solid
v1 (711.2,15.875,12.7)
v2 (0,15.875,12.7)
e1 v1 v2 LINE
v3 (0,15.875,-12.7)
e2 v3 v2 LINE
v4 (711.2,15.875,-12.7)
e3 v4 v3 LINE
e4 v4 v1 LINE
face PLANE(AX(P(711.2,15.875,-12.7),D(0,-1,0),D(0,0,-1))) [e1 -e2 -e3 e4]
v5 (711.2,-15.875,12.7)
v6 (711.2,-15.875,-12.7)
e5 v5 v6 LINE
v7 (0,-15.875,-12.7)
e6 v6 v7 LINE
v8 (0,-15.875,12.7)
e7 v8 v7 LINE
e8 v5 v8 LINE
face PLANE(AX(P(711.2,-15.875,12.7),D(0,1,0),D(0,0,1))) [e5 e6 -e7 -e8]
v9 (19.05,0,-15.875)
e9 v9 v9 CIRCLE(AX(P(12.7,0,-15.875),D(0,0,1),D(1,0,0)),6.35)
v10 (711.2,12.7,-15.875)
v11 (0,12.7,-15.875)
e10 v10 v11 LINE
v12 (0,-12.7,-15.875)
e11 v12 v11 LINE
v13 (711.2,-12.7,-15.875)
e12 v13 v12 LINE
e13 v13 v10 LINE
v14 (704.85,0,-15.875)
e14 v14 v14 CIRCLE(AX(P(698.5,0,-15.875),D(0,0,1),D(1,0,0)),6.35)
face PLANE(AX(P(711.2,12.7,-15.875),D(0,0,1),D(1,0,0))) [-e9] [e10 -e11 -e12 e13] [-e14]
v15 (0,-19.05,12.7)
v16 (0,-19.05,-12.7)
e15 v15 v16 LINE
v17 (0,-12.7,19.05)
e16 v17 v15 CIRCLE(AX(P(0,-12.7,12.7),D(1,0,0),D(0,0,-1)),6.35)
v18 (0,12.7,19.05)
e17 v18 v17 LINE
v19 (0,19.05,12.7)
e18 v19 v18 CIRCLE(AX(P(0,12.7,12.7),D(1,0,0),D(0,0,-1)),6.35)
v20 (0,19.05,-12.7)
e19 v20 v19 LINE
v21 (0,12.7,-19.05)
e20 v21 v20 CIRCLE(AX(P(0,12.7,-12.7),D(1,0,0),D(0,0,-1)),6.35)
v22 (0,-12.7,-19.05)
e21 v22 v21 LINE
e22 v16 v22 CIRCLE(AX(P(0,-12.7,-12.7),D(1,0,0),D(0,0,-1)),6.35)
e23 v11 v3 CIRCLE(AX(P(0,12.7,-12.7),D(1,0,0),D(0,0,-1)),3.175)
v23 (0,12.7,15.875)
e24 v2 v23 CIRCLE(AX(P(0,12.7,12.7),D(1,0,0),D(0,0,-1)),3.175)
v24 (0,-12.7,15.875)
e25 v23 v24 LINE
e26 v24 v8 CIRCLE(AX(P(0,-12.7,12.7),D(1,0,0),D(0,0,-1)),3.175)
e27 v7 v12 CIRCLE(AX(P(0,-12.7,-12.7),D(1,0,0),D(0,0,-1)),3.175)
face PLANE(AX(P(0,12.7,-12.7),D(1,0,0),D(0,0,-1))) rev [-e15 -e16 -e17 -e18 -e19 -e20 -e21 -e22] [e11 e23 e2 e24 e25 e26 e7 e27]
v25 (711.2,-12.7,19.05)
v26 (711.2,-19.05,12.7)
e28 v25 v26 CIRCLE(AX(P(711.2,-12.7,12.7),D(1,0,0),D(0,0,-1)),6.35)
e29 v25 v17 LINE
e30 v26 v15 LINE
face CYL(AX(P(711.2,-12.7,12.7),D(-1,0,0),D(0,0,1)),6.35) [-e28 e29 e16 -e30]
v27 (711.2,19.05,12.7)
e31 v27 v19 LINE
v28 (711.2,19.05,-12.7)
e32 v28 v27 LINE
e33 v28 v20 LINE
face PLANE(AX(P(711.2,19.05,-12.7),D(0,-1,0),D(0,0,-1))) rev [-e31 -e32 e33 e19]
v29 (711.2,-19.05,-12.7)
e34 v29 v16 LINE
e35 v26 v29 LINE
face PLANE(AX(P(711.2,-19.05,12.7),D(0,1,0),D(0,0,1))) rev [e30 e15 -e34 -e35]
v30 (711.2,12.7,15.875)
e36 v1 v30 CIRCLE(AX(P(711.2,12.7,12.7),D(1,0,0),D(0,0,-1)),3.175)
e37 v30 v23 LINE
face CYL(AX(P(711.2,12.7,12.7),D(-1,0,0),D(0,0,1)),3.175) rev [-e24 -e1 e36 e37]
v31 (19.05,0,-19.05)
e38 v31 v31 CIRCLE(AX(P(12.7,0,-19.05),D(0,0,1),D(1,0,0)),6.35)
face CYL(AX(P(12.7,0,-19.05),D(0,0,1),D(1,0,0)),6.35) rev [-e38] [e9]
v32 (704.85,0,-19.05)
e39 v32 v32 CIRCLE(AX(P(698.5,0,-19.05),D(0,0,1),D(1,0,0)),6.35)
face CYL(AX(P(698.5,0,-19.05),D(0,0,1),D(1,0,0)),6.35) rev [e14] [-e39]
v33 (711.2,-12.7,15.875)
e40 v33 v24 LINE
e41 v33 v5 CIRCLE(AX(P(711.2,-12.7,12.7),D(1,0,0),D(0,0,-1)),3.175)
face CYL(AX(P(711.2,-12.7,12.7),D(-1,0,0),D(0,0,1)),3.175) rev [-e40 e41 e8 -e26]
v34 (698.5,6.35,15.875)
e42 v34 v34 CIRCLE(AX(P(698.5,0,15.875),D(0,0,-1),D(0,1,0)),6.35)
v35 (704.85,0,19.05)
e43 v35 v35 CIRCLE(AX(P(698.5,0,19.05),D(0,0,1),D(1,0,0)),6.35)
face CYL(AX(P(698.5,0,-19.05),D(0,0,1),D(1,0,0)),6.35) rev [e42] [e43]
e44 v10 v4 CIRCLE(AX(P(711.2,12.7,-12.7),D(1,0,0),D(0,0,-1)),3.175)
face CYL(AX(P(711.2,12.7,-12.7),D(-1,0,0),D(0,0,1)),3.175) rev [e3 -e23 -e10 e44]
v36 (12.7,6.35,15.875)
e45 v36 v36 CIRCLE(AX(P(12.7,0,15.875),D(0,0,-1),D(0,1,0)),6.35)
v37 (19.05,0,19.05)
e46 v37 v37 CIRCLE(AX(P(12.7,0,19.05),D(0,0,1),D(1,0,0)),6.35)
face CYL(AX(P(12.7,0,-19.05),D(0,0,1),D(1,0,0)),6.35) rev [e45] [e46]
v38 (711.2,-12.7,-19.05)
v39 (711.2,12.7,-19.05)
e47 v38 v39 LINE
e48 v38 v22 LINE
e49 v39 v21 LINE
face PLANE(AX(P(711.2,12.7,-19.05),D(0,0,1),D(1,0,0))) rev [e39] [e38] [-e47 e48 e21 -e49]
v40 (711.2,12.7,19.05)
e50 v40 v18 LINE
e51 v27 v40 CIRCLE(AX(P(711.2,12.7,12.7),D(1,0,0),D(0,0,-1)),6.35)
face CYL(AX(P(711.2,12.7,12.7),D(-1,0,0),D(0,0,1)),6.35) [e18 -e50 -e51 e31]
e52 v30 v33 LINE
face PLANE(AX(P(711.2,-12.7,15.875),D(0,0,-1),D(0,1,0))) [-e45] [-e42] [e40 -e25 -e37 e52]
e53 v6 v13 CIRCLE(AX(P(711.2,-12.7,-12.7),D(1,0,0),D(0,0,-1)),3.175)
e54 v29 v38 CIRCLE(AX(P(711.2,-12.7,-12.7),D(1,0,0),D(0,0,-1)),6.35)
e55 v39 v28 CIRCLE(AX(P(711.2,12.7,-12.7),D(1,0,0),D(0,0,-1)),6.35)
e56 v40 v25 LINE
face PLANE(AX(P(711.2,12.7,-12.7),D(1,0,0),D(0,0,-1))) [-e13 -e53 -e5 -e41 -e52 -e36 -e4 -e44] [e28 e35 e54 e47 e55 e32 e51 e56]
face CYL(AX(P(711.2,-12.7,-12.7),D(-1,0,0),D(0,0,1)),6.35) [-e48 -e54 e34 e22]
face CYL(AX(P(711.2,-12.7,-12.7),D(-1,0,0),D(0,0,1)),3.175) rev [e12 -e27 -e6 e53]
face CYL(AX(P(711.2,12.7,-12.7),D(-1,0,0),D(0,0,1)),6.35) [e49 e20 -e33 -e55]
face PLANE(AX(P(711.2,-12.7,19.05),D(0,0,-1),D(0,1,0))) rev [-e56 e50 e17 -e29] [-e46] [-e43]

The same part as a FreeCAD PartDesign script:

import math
import FreeCAD as App
import Part
import Sketcher

V = App.Vector
Q = App.Units.Quantity

doc = App.newDocument("Part")
body = doc.addObject("PartDesign::Body", "Body")

# Sketch on YZ plane
sketch1 = body.newObject("Sketcher::SketchObject", "Sketch")
sketch1.AttachmentSupport = (doc.getObject("YZ_Plane"), [""])
sketch1.MapMode = "FlatFace"
sketch1.addGeometry(Part.LineSegment(V(-19.05, 12.7, 0), V(-19.05, -12.7, 0)), False)
sketch1.addGeometry(Part.ArcOfCircle(Part.Circle(V(-12.7, -12.7, 0), V(0, 0, 1), 6.35), math.radians(180), math.radians(270)), False)
sketch1.addGeometry(Part.LineSegment(V(-12.7, -19.05, 0), V(12.7, -19.05, 0)), False)
sketch1.addGeometry(Part.ArcOfCircle(Part.Circle(V(12.7, -12.7, 0), V(0, 0, 1), 6.35), math.radians(-90), math.radians(0)), False)
sketch1.addGeometry(Part.LineSegment(V(19.05, -12.7, 0), V(19.05, 12.7, 0)), False)
sketch1.addGeometry(Part.ArcOfCircle(Part.Circle(V(12.7, 12.7, 0), V(0, 0, 1), 6.35), math.radians(0), math.radians(90)), False)
sketch1.addGeometry(Part.LineSegment(V(12.7, 19.05, 0), V(-12.7, 19.05, 0)), False)
sketch1.addGeometry(Part.ArcOfCircle(Part.Circle(V(-12.7, 12.7, 0), V(0, 0, 1), 6.35), math.radians(90), math.radians(180)), False)
sketch1.addGeometry(Part.LineSegment(V(-15.875, -12.7, 0), V(-15.875, 12.7, 0)), False)
sketch1.addGeometry(Part.ArcOfCircle(Part.Circle(V(-12.7, 12.7, 0), V(0, 0, 1), 3.175), math.radians(90), math.radians(180)), False)
sketch1.addGeometry(Part.LineSegment(V(-12.7, 15.875, 0), V(12.7, 15.875, 0)), False)
sketch1.addGeometry(Part.ArcOfCircle(Part.Circle(V(12.7, 12.7, 0), V(0, 0, 1), 3.175), math.radians(0), math.radians(90)), False)
sketch1.addGeometry(Part.LineSegment(V(15.875, 12.7, 0), V(15.875, -12.7, 0)), False)
sketch1.addGeometry(Part.ArcOfCircle(Part.Circle(V(12.7, -12.7, 0), V(0, 0, 1), 3.175), math.radians(-90), math.radians(0)), False)
sketch1.addGeometry(Part.LineSegment(V(12.7, -15.875, 0), V(-12.7, -15.875, 0)), False)
sketch1.addGeometry(Part.ArcOfCircle(Part.Circle(V(-12.7, -12.7, 0), V(0, 0, 1), 3.175), math.radians(-180), math.radians(-90)), False)
sketch1.addConstraint(Sketcher.Constraint("Tangent", 0, 2, 1, 1))
sketch1.addConstraint(Sketcher.Constraint("Tangent", 1, 2, 2, 1))
sketch1.addConstraint(Sketcher.Constraint("Tangent", 2, 2, 3, 1))
sketch1.addConstraint(Sketcher.Constraint("Tangent", 3, 2, 4, 1))
sketch1.addConstraint(Sketcher.Constraint("Tangent", 4, 2, 5, 1))
sketch1.addConstraint(Sketcher.Constraint("Tangent", 5, 2, 6, 1))
sketch1.addConstraint(Sketcher.Constraint("Tangent", 6, 2, 7, 1))
sketch1.addConstraint(Sketcher.Constraint("Tangent", 7, 2, 0, 1))
sketch1.addConstraint(Sketcher.Constraint("Tangent", 8, 2, 9, 2))
sketch1.addConstraint(Sketcher.Constraint("Tangent", 9, 1, 10, 1))
sketch1.addConstraint(Sketcher.Constraint("Tangent", 10, 2, 11, 2))
sketch1.addConstraint(Sketcher.Constraint("Tangent", 11, 1, 12, 1))
sketch1.addConstraint(Sketcher.Constraint("Tangent", 12, 2, 13, 2))
sketch1.addConstraint(Sketcher.Constraint("Tangent", 13, 1, 14, 1))
sketch1.addConstraint(Sketcher.Constraint("Tangent", 14, 2, 15, 2))
sketch1.addConstraint(Sketcher.Constraint("Tangent", 15, 1, 8, 1))
sketch1.addConstraint(Sketcher.Constraint("Vertical", 0))
sketch1.addConstraint(Sketcher.Constraint("Horizontal", 2))
sketch1.addConstraint(Sketcher.Constraint("Vertical", 4))
sketch1.addConstraint(Sketcher.Constraint("Horizontal", 6))
sketch1.addConstraint(Sketcher.Constraint("Vertical", 8))
sketch1.addConstraint(Sketcher.Constraint("Horizontal", 10))
sketch1.addConstraint(Sketcher.Constraint("Vertical", 12))
sketch1.addConstraint(Sketcher.Constraint("Horizontal", 14))
sketch1.addConstraint(Sketcher.Constraint("Coincident", 9, 3, 7, 3))
sketch1.addConstraint(Sketcher.Constraint("Coincident", 11, 3, 5, 3))
sketch1.addConstraint(Sketcher.Constraint("Coincident", 13, 3, 3, 3))
sketch1.addConstraint(Sketcher.Constraint("Equal", 1, 3))
sketch1.addConstraint(Sketcher.Constraint("Equal", 3, 5))
sketch1.addConstraint(Sketcher.Constraint("Equal", 5, 7))
sketch1.addConstraint(Sketcher.Constraint("Equal", 13, 15))
sketch1.addConstraint(Sketcher.Constraint("Symmetric", 1, 3, 5, 3, -1, 1))
sketch1.addConstraint(Sketcher.Constraint("Equal", 14, 0))
sketch1.addConstraint(Sketcher.Constraint("DistanceX", 2, 1, 2, 2, Q("1 in")))
sketch1.addConstraint(Sketcher.Constraint("Radius", 1, Q("0.25 in")))
sketch1.addConstraint(Sketcher.Constraint("Radius", 9, Q("0.125 in")))
pad1 = body.newObject("PartDesign::Pad", "Pad")
pad1.Profile = sketch1
pad1.Length = Q("28 in")

# Sketch on XY plane
sketch2 = body.newObject("Sketcher::SketchObject", "Sketch001")
sketch2.AttachmentSupport = (doc.getObject("XY_Plane"), [""])
sketch2.MapMode = "FlatFace"
sketch2.AttachmentOffset = App.Placement(V(0, 0, 0.75 * 25.4), App.Rotation())
sketch2.addGeometry(Part.Circle(V(12.7, 0, 0), V(0, 0, 1), 6.35), False)
sketch2.addConstraint(Sketcher.Constraint("PointOnObject", 0, 3, -1))
sketch2.addConstraint(Sketcher.Constraint("Diameter", 0, Q("0.5 in")))
sketch2.addConstraint(Sketcher.Constraint("DistanceX", -1, 1, 0, 3, Q("0.5 in")))
pocket1 = body.newObject("PartDesign::Pocket", "Pocket")
pocket1.Profile = sketch2
pocket1.Type = "ThroughAll"

# Sketch on XY plane
sketch3 = body.newObject("Sketcher::SketchObject", "Sketch002")
sketch3.AttachmentSupport = (doc.getObject("XY_Plane"), [""])
sketch3.MapMode = "FlatFace"
sketch3.AttachmentOffset = App.Placement(V(0, 0, 0.75 * 25.4), App.Rotation())
sketch3.addGeometry(Part.Circle(V(698.5, 0, 0), V(0, 0, 1), 6.35), False)
sketch3.addConstraint(Sketcher.Constraint("PointOnObject", 0, 3, -1))
sketch3.addConstraint(Sketcher.Constraint("Diameter", 0, Q("0.5 in")))
sketch3.addConstraint(Sketcher.Constraint("DistanceX", -1, 1, 0, 3, Q("27.5 in")))
pocket2 = body.newObject("PartDesign::Pocket", "Pocket001")
pocket2.Profile = sketch3
pocket2.Type = "ThroughAll"

doc.recompute()
